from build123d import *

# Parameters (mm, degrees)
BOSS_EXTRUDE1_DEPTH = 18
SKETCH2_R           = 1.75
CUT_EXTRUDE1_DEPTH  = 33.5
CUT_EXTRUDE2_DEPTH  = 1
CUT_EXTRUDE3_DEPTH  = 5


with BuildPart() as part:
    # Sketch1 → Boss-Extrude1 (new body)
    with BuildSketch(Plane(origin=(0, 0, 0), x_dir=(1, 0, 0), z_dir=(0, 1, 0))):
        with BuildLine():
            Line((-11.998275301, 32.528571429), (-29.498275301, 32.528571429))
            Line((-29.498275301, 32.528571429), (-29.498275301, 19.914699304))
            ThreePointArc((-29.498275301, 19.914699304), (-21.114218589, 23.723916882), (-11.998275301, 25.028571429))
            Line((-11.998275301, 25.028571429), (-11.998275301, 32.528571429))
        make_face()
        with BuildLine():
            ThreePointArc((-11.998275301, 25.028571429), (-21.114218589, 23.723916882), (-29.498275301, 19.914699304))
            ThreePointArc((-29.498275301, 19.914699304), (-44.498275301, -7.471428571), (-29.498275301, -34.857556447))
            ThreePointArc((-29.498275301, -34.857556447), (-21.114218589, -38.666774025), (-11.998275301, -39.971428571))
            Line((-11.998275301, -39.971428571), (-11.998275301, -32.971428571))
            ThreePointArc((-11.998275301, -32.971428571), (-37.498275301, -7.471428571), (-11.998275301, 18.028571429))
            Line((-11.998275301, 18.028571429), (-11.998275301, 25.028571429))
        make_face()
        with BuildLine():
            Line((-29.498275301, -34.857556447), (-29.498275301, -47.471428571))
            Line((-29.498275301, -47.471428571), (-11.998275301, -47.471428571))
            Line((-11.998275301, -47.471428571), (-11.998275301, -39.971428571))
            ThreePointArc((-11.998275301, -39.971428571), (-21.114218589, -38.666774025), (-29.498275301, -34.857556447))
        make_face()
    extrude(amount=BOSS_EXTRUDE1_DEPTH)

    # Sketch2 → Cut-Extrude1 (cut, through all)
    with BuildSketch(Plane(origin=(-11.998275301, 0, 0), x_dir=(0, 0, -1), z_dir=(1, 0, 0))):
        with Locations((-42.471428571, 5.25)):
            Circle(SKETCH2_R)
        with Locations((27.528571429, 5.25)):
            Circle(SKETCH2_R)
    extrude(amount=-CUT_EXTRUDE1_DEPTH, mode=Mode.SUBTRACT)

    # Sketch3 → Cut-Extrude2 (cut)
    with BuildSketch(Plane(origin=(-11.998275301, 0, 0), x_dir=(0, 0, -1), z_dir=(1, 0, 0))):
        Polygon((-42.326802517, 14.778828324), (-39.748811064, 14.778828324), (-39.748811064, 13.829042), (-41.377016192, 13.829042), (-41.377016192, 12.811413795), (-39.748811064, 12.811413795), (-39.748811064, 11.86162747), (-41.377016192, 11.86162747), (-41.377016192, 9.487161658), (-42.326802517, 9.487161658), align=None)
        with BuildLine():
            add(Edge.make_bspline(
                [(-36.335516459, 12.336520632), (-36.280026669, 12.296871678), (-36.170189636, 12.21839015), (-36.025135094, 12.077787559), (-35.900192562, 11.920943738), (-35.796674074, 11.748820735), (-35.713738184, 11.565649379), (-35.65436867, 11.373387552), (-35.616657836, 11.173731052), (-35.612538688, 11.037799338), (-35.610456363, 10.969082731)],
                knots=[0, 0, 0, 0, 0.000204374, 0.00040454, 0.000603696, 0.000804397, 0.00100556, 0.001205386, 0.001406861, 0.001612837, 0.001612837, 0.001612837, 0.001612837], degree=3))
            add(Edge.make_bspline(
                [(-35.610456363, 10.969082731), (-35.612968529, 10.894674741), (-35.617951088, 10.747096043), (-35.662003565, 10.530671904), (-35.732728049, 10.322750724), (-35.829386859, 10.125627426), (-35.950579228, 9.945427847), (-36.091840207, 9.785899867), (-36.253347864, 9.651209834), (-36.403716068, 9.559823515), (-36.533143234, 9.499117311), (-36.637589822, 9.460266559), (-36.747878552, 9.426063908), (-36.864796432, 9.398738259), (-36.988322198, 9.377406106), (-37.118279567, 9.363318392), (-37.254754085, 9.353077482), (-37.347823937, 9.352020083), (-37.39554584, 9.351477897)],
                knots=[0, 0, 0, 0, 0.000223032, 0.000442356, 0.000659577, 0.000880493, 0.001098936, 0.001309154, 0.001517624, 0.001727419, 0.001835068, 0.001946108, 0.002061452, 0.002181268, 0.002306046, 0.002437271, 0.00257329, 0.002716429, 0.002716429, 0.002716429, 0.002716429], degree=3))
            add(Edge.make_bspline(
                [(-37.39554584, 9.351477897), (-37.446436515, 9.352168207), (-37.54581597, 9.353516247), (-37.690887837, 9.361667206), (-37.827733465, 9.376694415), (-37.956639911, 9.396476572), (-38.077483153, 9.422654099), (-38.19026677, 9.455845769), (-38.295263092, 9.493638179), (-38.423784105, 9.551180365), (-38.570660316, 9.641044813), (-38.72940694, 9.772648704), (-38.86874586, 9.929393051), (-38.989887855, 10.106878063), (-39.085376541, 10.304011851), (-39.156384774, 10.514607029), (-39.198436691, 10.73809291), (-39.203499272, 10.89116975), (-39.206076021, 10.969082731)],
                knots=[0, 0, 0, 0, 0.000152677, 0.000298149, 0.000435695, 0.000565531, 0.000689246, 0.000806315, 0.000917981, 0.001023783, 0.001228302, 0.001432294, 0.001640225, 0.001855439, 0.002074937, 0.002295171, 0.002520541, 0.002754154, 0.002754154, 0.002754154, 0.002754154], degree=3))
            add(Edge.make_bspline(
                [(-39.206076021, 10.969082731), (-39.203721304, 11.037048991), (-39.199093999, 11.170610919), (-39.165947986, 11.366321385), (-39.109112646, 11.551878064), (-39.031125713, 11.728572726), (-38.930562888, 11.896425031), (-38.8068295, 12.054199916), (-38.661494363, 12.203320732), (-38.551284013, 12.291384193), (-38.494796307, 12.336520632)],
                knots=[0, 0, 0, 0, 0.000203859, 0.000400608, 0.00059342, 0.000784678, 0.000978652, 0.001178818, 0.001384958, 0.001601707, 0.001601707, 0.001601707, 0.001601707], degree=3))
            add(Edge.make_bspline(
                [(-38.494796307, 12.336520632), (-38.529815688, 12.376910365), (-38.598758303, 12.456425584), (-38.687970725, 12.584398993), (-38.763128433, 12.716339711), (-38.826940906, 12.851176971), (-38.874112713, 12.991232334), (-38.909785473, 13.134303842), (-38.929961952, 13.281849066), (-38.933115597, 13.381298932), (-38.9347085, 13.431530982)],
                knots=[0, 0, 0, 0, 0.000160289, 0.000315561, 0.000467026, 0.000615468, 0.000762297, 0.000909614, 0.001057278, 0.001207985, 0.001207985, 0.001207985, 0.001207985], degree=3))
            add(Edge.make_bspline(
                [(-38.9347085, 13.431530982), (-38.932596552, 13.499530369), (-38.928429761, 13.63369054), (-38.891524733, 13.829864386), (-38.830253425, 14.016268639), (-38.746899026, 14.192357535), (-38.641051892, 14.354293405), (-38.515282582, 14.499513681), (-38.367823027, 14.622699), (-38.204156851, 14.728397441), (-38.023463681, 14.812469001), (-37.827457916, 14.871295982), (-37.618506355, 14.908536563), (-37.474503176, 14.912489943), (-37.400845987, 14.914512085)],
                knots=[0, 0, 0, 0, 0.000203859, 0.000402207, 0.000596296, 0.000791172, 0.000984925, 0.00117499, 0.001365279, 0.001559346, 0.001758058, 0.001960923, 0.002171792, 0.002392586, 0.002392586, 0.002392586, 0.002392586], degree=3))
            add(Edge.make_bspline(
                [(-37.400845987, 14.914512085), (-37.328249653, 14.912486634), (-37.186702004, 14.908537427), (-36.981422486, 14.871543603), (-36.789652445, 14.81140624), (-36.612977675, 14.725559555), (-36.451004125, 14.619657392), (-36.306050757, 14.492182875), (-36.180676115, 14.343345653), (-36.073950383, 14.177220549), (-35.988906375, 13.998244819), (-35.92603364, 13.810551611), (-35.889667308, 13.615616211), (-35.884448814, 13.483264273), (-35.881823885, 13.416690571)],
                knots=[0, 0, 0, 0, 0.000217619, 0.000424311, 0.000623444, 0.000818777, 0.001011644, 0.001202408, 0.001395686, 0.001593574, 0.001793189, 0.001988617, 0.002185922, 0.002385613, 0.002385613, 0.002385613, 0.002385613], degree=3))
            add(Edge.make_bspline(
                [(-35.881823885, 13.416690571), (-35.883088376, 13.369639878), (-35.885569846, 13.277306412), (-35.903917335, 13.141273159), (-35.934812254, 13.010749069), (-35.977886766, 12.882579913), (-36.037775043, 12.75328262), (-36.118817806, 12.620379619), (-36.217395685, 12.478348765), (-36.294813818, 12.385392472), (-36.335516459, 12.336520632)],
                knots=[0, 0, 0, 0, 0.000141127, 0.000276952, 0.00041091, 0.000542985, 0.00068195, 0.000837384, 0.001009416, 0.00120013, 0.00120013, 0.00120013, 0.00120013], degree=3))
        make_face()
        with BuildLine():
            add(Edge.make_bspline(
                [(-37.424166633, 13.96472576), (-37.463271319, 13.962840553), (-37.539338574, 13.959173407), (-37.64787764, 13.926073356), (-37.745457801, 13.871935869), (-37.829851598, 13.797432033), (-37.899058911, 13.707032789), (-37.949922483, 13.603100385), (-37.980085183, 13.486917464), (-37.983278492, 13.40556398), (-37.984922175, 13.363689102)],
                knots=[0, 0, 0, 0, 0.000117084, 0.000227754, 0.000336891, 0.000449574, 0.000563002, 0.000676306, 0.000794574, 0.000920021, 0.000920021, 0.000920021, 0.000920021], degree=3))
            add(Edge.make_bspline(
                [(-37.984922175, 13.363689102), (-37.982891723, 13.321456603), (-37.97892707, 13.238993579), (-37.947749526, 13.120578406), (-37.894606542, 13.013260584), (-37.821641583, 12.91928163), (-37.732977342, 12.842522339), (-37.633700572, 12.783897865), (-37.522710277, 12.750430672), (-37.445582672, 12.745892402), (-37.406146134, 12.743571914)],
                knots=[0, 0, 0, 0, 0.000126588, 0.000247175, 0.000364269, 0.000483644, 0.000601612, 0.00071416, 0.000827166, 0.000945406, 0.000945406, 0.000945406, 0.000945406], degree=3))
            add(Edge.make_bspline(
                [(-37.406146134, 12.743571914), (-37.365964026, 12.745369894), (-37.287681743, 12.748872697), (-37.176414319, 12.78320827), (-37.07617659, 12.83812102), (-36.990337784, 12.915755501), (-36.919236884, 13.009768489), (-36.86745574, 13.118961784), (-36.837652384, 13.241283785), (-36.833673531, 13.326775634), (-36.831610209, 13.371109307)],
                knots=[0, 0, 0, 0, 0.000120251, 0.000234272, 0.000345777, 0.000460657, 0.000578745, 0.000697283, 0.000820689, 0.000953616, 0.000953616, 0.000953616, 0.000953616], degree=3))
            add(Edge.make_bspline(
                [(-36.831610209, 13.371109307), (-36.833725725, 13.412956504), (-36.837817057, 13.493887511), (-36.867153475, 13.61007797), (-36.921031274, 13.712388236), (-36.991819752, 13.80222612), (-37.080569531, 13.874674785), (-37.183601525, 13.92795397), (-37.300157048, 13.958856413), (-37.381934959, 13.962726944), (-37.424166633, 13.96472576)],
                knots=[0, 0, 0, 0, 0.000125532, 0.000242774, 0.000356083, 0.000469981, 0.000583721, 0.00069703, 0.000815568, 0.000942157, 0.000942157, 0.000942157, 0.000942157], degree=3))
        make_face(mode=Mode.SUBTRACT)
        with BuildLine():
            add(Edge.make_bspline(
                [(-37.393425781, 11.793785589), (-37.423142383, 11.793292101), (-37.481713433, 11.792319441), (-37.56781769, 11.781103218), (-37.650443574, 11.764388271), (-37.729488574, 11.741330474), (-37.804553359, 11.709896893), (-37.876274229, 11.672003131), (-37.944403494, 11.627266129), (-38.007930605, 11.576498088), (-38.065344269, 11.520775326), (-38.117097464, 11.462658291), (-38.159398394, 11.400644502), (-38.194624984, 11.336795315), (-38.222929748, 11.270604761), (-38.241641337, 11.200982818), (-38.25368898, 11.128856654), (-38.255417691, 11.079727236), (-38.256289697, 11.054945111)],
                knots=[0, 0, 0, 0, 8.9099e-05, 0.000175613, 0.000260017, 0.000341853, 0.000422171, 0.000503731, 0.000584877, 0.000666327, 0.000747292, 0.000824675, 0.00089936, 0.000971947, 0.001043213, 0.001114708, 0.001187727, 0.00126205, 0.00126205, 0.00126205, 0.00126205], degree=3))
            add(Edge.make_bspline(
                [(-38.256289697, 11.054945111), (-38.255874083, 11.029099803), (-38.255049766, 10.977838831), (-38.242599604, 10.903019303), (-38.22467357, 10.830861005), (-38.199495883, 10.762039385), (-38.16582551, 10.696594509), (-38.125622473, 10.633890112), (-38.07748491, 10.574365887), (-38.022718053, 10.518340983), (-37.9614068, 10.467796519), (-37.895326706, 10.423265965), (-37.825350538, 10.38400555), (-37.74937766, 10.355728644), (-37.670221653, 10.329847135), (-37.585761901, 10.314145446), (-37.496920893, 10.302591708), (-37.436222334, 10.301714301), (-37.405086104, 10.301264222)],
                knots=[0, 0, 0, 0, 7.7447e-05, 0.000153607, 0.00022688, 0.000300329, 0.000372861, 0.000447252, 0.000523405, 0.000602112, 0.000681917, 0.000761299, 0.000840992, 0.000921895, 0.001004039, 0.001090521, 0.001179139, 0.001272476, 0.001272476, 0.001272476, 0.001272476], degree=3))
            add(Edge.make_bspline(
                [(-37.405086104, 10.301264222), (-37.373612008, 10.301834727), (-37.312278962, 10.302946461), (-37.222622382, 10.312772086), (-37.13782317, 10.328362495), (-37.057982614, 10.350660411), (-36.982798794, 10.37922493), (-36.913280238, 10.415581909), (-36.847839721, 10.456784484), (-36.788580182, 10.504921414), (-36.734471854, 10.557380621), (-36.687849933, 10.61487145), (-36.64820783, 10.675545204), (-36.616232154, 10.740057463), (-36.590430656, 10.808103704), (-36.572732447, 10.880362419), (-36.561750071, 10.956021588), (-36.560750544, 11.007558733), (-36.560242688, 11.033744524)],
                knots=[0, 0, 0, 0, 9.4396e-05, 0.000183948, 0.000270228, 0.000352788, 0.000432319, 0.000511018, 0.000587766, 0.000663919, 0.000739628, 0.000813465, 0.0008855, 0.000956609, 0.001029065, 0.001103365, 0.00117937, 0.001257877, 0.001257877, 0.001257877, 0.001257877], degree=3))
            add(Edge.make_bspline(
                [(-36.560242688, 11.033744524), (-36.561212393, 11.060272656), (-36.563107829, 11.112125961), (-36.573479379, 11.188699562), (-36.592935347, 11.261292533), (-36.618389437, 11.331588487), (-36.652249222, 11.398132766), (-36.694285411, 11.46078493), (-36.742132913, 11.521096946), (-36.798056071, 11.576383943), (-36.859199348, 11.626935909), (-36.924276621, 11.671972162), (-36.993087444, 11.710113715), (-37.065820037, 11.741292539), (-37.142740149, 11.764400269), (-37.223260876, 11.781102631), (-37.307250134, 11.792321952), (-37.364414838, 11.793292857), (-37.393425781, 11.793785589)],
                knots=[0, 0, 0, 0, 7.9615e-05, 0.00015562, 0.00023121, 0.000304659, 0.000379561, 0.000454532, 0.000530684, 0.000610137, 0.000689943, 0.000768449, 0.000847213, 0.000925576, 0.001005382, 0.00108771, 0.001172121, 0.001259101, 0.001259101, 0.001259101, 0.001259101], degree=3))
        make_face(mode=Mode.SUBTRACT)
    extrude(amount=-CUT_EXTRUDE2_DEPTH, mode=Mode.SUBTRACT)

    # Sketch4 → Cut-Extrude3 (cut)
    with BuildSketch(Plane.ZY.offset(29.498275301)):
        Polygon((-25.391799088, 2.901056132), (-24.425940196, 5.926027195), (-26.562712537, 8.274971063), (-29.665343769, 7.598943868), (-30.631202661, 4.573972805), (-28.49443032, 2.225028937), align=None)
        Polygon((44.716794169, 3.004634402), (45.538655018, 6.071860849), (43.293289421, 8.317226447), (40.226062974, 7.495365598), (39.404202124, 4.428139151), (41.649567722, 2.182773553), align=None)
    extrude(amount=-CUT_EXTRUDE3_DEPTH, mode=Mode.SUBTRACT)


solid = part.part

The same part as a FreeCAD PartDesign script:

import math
import FreeCAD as App
import Part
import Sketcher

V = App.Vector
Q = App.Units.Quantity

doc = App.newDocument("Part")
body = doc.addObject("PartDesign::Body", "Body")

sketch1 = body.newObject("Sketcher::SketchObject", "Sketch")
sketch1.AttachmentSupport = (doc.getObject("XZ_Plane"), [""])
sketch1.MapMode = "FlatFace"
sketch1.addGeometry([
    Part.LineSegment(V(-12, -33, 0), V(-29, -33, 0)),
    Part.LineSegment(V(-29, -33, 0), V(-29, -20, 0)),
    Part.ArcOfCircle(Part.Circle(V(-12, 7, 0), V(0, 0, 1), 32), math.radians(123), math.radians(237)),
    Part.LineSegment(V(-29, 35, 0), V(-29, 47, 0)),
    Part.LineSegment(V(-29, 47, 0), V(-12, 47, 0)),
    Part.LineSegment(V(-12, 47, 0), V(-12, 33, 0)),
    Part.ArcOfCircle(Part.Circle(V(-12, 7, 0), V(0, 0, 1), 26), math.radians(90), math.radians(270)),
    Part.LineSegment(V(-12, -18, 0), V(-12, -33, 0)),
], False)
sketch1.addConstraint([
    Sketcher.Constraint("Coincident", 0, 2, 1, 1),
    Sketcher.Constraint("Coincident", 1, 2, 2, 2),
    Sketcher.Constraint("Coincident", 2, 1, 3, 1),
    Sketcher.Constraint("Coincident", 3, 2, 4, 1),
    Sketcher.Constraint("Coincident", 4, 2, 5, 1),
    Sketcher.Constraint("Coincident", 5, 2, 6, 1),
    Sketcher.Constraint("Coincident", 6, 2, 7, 1),
    Sketcher.Constraint("Coincident", 7, 2, 0, 1),
    Sketcher.Constraint("Horizontal", 0),
    Sketcher.Constraint("Vertical", 1),
    Sketcher.Constraint("Vertical", 3),
    Sketcher.Constraint("Horizontal", 4),
    Sketcher.Constraint("Vertical", 5),
    Sketcher.Constraint("Vertical", 7),
    Sketcher.Constraint("Coincident", 6, 3, 2, 3),
    Sketcher.Constraint("Vertical", 1, 2, 2, 1),
    Sketcher.Constraint("Vertical", 6, 3, 4, 2),
    Sketcher.Constraint("Vertical", 5, 2, 6, 2),
    Sketcher.Constraint("Equal", 1, 3),
    Sketcher.Constraint("Radius", 2, 32.5),
    Sketcher.Constraint("Radius", 6, 25.5),
    Sketcher.Constraint("DistanceX", 0, 2, 0, 1, 17.5),
    Sketcher.Constraint("DistanceY", 5, 2, 5, 1, 14.5),
    Sketcher.Constraint("DistanceY", 1, 2, -1, 1, 19.914699),
    Sketcher.Constraint("DistanceX", 2, 3, -1, 1, 11.998275),
])
pad1 = body.newObject("PartDesign::Pad", "Pad")
pad1.Profile = sketch1
pad1.Length = 18
pad1.Reversed = True

sketch2 = body.newObject("Sketcher::SketchObject", "Sketch001")
sketch2.AttachmentSupport = (doc.getObject("YZ_Plane"), [""])
sketch2.MapMode = "FlatFace"
sketch2.AttachmentOffset = App.Placement(V(0, 0, -11.998275), App.Rotation())
sketch2.addGeometry([
    Part.Circle(V(5.2, 42.5, 0), V(0, 0, 1), 1.8),
    Part.Circle(V(5.2, -27.5, 0), V(0, 0, 1), 1.8),
], False)
sketch2.addConstraint([
    Sketcher.Constraint("Equal", 0, 1),
    Sketcher.Constraint("Vertical", 0, 3, 1, 3),
    Sketcher.Constraint("Diameter", 0, 3.5),
    Sketcher.Constraint("DistanceY", 1, 3, 0, 3, 70.0),
    Sketcher.Constraint("DistanceX", -1, 1, 0, 3, 5.25),
    Sketcher.Constraint("DistanceY", -1, 1, 0, 3, 42.471429),
])
pocket1 = body.newObject("PartDesign::Pocket", "Pocket")
pocket1.Profile = sketch2
pocket1.Type = "ThroughAll"

sketch3 = body.newObject("Sketcher::SketchObject", "Sketch002")
sketch3.AttachmentSupport = (doc.getObject("YZ_Plane"), [""])
sketch3.MapMode = "FlatFace"
sketch3.AttachmentOffset = App.Placement(V(0, 0, -11.998275), App.Rotation())
sketch3.addGeometry([
    Part.LineSegment(V(14.778828, 39.748811, 0), V(14.778828, 42.326803, 0)),
    Part.LineSegment(V(14.778828, 42.326803, 0), V(9.487162, 42.326803, 0)),
    Part.LineSegment(V(9.487162, 42.326803, 0), V(9.487162, 41.377016, 0)),
    Part.LineSegment(V(9.487162, 41.377016, 0), V(11.861627, 41.377016, 0)),
    Part.LineSegment(V(11.861627, 41.377016, 0), V(11.861627, 39.748811, 0)),
    Part.LineSegment(V(11.861627, 39.748811, 0), V(12.811414, 39.748811, 0)),
    Part.LineSegment(V(12.811414, 39.748811, 0), V(12.811414, 41.377016, 0)),
    Part.LineSegment(V(12.811414, 41.377016, 0), V(13.829042, 41.377016, 0)),
    Part.LineSegment(V(13.829042, 41.377016, 0), V(13.829042, 39.748811, 0)),
    Part.LineSegment(V(13.829042, 39.748811, 0), V(14.778828, 39.748811, 0)),
    Part.BSplineCurve([V(12.336521, 36.335516, 0), V(12.296872, 36.280027, 0), V(12.21839, 36.17019, 0), V(12.077788, 36.025135, 0), V(11.920944, 35.900193, 0), V(11.748821, 35.796674, 0), V(11.565649, 35.713738, 0), V(11.373388, 35.654369, 0), V(11.173731, 35.616658, 0), V(11.037799, 35.612539, 0), V(10.969083, 35.610456, 0)], [4, 1, 1, 1, 1, 1, 1, 1, 4], [0, 0.000204374, 0.00040454, 0.000603696, 0.000804397, 0.00100556, 0.001205386, 0.001406861, 0.001612837], False, 3, [1, 1, 1, 1, 1, 1, 1, 1, 1, 1, 1], False),
    Part.BSplineCurve([V(13.416691, 35.881824, 0), V(13.36964, 35.883088, 0), V(13.277306, 35.88557, 0), V(13.141273, 35.903917, 0), V(13.010749, 35.934812, 0), V(12.88258, 35.977887, 0), V(12.753283, 36.037775, 0), V(12.62038, 36.118818, 0), V(12.478349, 36.217396, 0), V(12.385392, 36.294814, 0), V(12.336521, 36.335516, 0)], [4, 1, 1, 1, 1, 1, 1, 1, 4], [0, 0.000141127, 0.000276952, 0.00041091, 0.000542985, 0.00068195, 0.000837384, 0.001009416, 0.00120013], False, 3, [1, 1, 1, 1, 1, 1, 1, 1, 1, 1, 1], False),
    Part.BSplineCurve([V(14.914512, 37.400846, 0), V(14.912487, 37.32825, 0), V(14.908537, 37.186702, 0), V(14.871544, 36.981422, 0), V(14.811406, 36.789652, 0), V(14.72556, 36.612978, 0), V(14.619657, 36.451004, 0), V(14.492183, 36.306051, 0), V(14.343346, 36.180676, 0), V(14.177221, 36.07395, 0), V(13.998245, 35.988906, 0), V(13.810552, 35.926034, 0), V(13.615616, 35.889667, 0), V(13.483264, 35.884449, 0), V(13.416691, 35.881824, 0)], [4, 1, 1, 1, 1, 1, 1, 1, 1, 1, 1, 1, 4], [0, 0.000217619, 0.000424311, 0.000623444, 0.000818777, 0.001011644, 0.001202408, 0.001395686, 0.001593574, 0.001793189, 0.001988617, 0.002185922, 0.002385613], False, 3, [1, 1, 1, 1, 1, 1, 1, 1, 1, 1, 1, 1, 1, 1, 1], False),
    Part.BSplineCurve([V(13.431531, 38.934708, 0), V(13.49953, 38.932597, 0), V(13.633691, 38.92843, 0), V(13.829864, 38.891525, 0), V(14.016269, 38.830253, 0), V(14.192358, 38.746899, 0), V(14.354293, 38.641052, 0), V(14.499514, 38.515283, 0), V(14.622699, 38.367823, 0), V(14.728397, 38.204157, 0), V(14.812469, 38.023464, 0), V(14.871296, 37.827458, 0), V(14.908537, 37.618506, 0), V(14.91249, 37.474503, 0), V(14.914512, 37.400846, 0)], [4, 1, 1, 1, 1, 1, 1, 1, 1, 1, 1, 1, 4], [0, 0.000203859, 0.000402207, 0.000596296, 0.000791172, 0.000984925, 0.00117499, 0.001365279, 0.001559346, 0.001758058, 0.001960923, 0.002171792, 0.002392586], False, 3, [1, 1, 1, 1, 1, 1, 1, 1, 1, 1, 1, 1, 1, 1, 1], False),
    Part.BSplineCurve([V(12.336521, 38.494796, 0), V(12.37691, 38.529816, 0), V(12.456426, 38.598758, 0), V(12.584399, 38.687971, 0), V(12.71634, 38.763128, 0), V(12.851177, 38.826941, 0), V(12.991232, 38.874113, 0), V(13.134304, 38.909785, 0), V(13.281849, 38.929962, 0), V(13.381299, 38.933116, 0), V(13.431531, 38.934708, 0)], [4, 1, 1, 1, 1, 1, 1, 1, 4], [0, 0.000160289, 0.000315561, 0.000467026, 0.000615468, 0.000762297, 0.000909614, 0.001057278, 0.001207985], False, 3, [1, 1, 1, 1, 1, 1, 1, 1, 1, 1, 1], False),
    Part.BSplineCurve([V(10.969083, 39.206076, 0), V(11.037049, 39.203721, 0), V(11.170611, 39.199094, 0), V(11.366321, 39.165948, 0), V(11.551878, 39.109113, 0), V(11.728573, 39.031126, 0), V(11.896425, 38.930563, 0), V(12.0542, 38.806829, 0), V(12.203321, 38.661494, 0), V(12.291384, 38.551284, 0), V(12.336521, 38.494796, 0)], [4, 1, 1, 1, 1, 1, 1, 1, 4], [0, 0.000203859, 0.000400608, 0.00059342, 0.000784678, 0.000978652, 0.001178818, 0.001384958, 0.001601707], False, 3, [1, 1, 1, 1, 1, 1, 1, 1, 1, 1, 1], False),
    Part.BSplineCurve([V(9.351478, 37.395546, 0), V(9.352168, 37.446437, 0), V(9.353516, 37.545816, 0), V(9.361667, 37.690888, 0), V(9.376694, 37.827733, 0), V(9.396477, 37.95664, 0), V(9.422654, 38.077483, 0), V(9.455846, 38.190267, 0), V(9.493638, 38.295263, 0), V(9.55118, 38.423784, 0), V(9.641045, 38.57066, 0), V(9.772649, 38.729407, 0), V(9.929393, 38.868746, 0), V(10.106878, 38.989888, 0), V(10.304012, 39.085377, 0), V(10.514607, 39.156385, 0), V(10.738093, 39.198437, 0), V(10.89117, 39.203499, 0), V(10.969083, 39.206076, 0)], [4, 1, 1, 1, 1, 1, 1, 1, 1, 1, 1, 1, 1, 1, 1, 1, 4], [0, 0.000152677, 0.000298149, 0.000435695, 0.000565531, 0.000689246, 0.000806315, 0.000917981, 0.001023783, 0.001228302, 0.001432294, 0.001640225, 0.001855439, 0.002074937, 0.002295171, 0.002520541, 0.002754154], False, 3, [1, 1, 1, 1, 1, 1, 1, 1, 1, 1, 1, 1, 1, 1, 1, 1, 1, 1, 1], False),
    Part.BSplineCurve([V(10.969083, 35.610456, 0), V(10.894675, 35.612969, 0), V(10.747096, 35.617951, 0), V(10.530672, 35.662004, 0), V(10.322751, 35.732728, 0), V(10.125627, 35.829387, 0), V(9.945428, 35.950579, 0), V(9.7859, 36.09184, 0), V(9.65121, 36.253348, 0), V(9.559824, 36.403716, 0), V(9.499117, 36.533143, 0), V(9.460267, 36.63759, 0), V(9.426064, 36.747879, 0), V(9.398738, 36.864796, 0), V(9.377406, 36.988322, 0), V(9.363318, 37.11828, 0), V(9.353077, 37.254754, 0), V(9.35202, 37.347824, 0), V(9.351478, 37.395546, 0)], [4, 1, 1, 1, 1, 1, 1, 1, 1, 1, 1, 1, 1, 1, 1, 1, 4], [0, 0.000223032, 0.000442356, 0.000659577, 0.000880493, 0.001098936, 0.001309154, 0.001517624, 0.001727419, 0.001835068, 0.001946108, 0.002061452, 0.002181268, 0.002306046, 0.002437271, 0.00257329, 0.002716429], False, 3, [1, 1, 1, 1, 1, 1, 1, 1, 1, 1, 1, 1, 1, 1, 1, 1, 1, 1, 1], False),
    Part.BSplineCurve([V(11.033745, 36.560243, 0), V(11.060273, 36.561212, 0), V(11.112126, 36.563108, 0), V(11.1887, 36.573479, 0), V(11.261293, 36.592935, 0), V(11.331588, 36.618389, 0), V(11.398133, 36.652249, 0), V(11.460785, 36.694285, 0), V(11.521097, 36.742133, 0), V(11.576384, 36.798056, 0), V(11.626936, 36.859199, 0), V(11.671972, 36.924277, 0), V(11.710114, 36.993087, 0), V(11.741293, 37.06582, 0), V(11.7644, 37.14274, 0), V(11.781103, 37.223261, 0), V(11.792322, 37.30725, 0), V(11.793293, 37.364415, 0), V(11.793786, 37.393426, 0)], [4, 1, 1, 1, 1, 1, 1, 1, 1, 1, 1, 1, 1, 1, 1, 1, 4], [0, 0.000079615, 0.00015562, 0.00023121, 0.000304659, 0.000379561, 0.000454532, 0.000530684, 0.000610137, 0.000689943, 0.000768449, 0.000847213, 0.000925576, 0.001005382, 0.00108771, 0.001172121, 0.001259101], False, 3, [1, 1, 1, 1, 1, 1, 1, 1, 1, 1, 1, 1, 1, 1, 1, 1, 1, 1, 1], False),
    Part.BSplineCurve([V(10.301264, 37.405086, 0), V(10.301835, 37.373612, 0), V(10.302946, 37.312279, 0), V(10.312772, 37.222622, 0), V(10.328362, 37.137823, 0), V(10.35066, 37.057983, 0), V(10.379225, 36.982799, 0), V(10.415582, 36.91328, 0), V(10.456784, 36.84784, 0), V(10.504921, 36.78858, 0), V(10.557381, 36.734472, 0), V(10.614871, 36.68785, 0), V(10.675545, 36.648208, 0), V(10.740057, 36.616232, 0), V(10.808104, 36.590431, 0), V(10.880362, 36.572732, 0), V(10.956022, 36.56175, 0), V(11.007559, 36.560751, 0), V(11.033745, 36.560243, 0)], [4, 1, 1, 1, 1, 1, 1, 1, 1, 1, 1, 1, 1, 1, 1, 1, 4], [0, 0.000094396, 0.000183948, 0.000270228, 0.000352788, 0.000432319, 0.000511018, 0.000587766, 0.000663919, 0.000739628, 0.000813465, 0.0008855, 0.000956609, 0.001029065, 0.001103365, 0.00117937, 0.001257877], False, 3, [1, 1, 1, 1, 1, 1, 1, 1, 1, 1, 1, 1, 1, 1, 1, 1, 1, 1, 1], False),
    Part.BSplineCurve([V(11.054945, 38.25629, 0), V(11.0291, 38.255874, 0), V(10.977839, 38.25505, 0), V(10.903019, 38.2426, 0), V(10.830861, 38.224674, 0), V(10.762039, 38.199496, 0), V(10.696595, 38.165826, 0), V(10.63389, 38.125622, 0), V(10.574366, 38.077485, 0), V(10.518341, 38.022718, 0), V(10.467797, 37.961407, 0), V(10.423266, 37.895327, 0), V(10.384006, 37.825351, 0), V(10.355729, 37.749378, 0), V(10.329847, 37.670222, 0), V(10.314145, 37.585762, 0), V(10.302592, 37.496921, 0), V(10.301714, 37.436222, 0), V(10.301264, 37.405086, 0)], [4, 1, 1, 1, 1, 1, 1, 1, 1, 1, 1, 1, 1, 1, 1, 1, 4], [0, 0.000077447, 0.000153607, 0.00022688, 0.000300329, 0.000372861, 0.000447252, 0.000523405, 0.000602112, 0.000681917, 0.000761299, 0.000840992, 0.000921895, 0.001004039, 0.001090521, 0.001179139, 0.001272476], False, 3, [1, 1, 1, 1, 1, 1, 1, 1, 1, 1, 1, 1, 1, 1, 1, 1, 1, 1, 1], False),
    Part.BSplineCurve([V(11.793786, 37.393426, 0), V(11.793292, 37.423142, 0), V(11.792319, 37.481713, 0), V(11.781103, 37.567818, 0), V(11.764388, 37.650444, 0), V(11.74133, 37.729489, 0), V(11.709897, 37.804553, 0), V(11.672003, 37.876274, 0), V(11.627266, 37.944403, 0), V(11.576498, 38.007931, 0), V(11.520775, 38.065344, 0), V(11.462658, 38.117097, 0), V(11.400645, 38.159398, 0), V(11.336795, 38.194625, 0), V(11.270605, 38.22293, 0), V(11.200983, 38.241641, 0), V(11.128857, 38.253689, 0), V(11.079727, 38.255418, 0), V(11.054945, 38.25629, 0)], [4, 1, 1, 1, 1, 1, 1, 1, 1, 1, 1, 1, 1, 1, 1, 1, 4], [0, 0.000089099, 0.000175613, 0.000260017, 0.000341853, 0.000422171, 0.000503731, 0.000584877, 0.000666327, 0.000747292, 0.000824675, 0.00089936, 0.000971947, 0.001043213, 0.001114708, 0.001187727, 0.00126205], False, 3, [1, 1, 1, 1, 1, 1, 1, 1, 1, 1, 1, 1, 1, 1, 1, 1, 1, 1, 1], False),
    Part.BSplineCurve([V(13.371109, 36.83161, 0), V(13.412957, 36.833726, 0), V(13.493888, 36.837817, 0), V(13.610078, 36.867153, 0), V(13.712388, 36.921031, 0), V(13.802226, 36.99182, 0), V(13.874675, 37.08057, 0), V(13.927954, 37.183602, 0), V(13.958856, 37.300157, 0), V(13.962727, 37.381935, 0), V(13.964726, 37.424167, 0)], [4, 1, 1, 1, 1, 1, 1, 1, 4], [0, 0.000125532, 0.000242774, 0.000356083, 0.000469981, 0.000583721, 0.00069703, 0.000815568, 0.000942157], False, 3, [1, 1, 1, 1, 1, 1, 1, 1, 1, 1, 1], False),
    Part.BSplineCurve([V(12.743572, 37.406146, 0), V(12.74537, 37.365964, 0), V(12.748873, 37.287682, 0), V(12.783208, 37.176414, 0), V(12.838121, 37.076177, 0), V(12.915756, 36.990338, 0), V(13.009768, 36.919237, 0), V(13.118962, 36.867456, 0), V(13.241284, 36.837652, 0), V(13.326776, 36.833674, 0), V(13.371109, 36.83161, 0)], [4, 1, 1, 1, 1, 1, 1, 1, 4], [0, 0.000120251, 0.000234272, 0.000345777, 0.000460657, 0.000578745, 0.000697283, 0.000820689, 0.000953616], False, 3, [1, 1, 1, 1, 1, 1, 1, 1, 1, 1, 1], False),
    Part.BSplineCurve([V(13.363689, 37.984922, 0), V(13.321457, 37.982892, 0), V(13.238994, 37.978927, 0), V(13.120578, 37.94775, 0), V(13.013261, 37.894607, 0), V(12.919282, 37.821642, 0), V(12.842522, 37.732977, 0), V(12.783898, 37.633701, 0), V(12.750431, 37.52271, 0), V(12.745892, 37.445583, 0), V(12.743572, 37.406146, 0)], [4, 1, 1, 1, 1, 1, 1, 1, 4], [0, 0.000126588, 0.000247175, 0.000364269, 0.000483644, 0.000601612, 0.00071416, 0.000827166, 0.000945406], False, 3, [1, 1, 1, 1, 1, 1, 1, 1, 1, 1, 1], False),
    Part.BSplineCurve([V(13.964726, 37.424167, 0), V(13.962841, 37.463271, 0), V(13.959173, 37.539339, 0), V(13.926073, 37.647878, 0), V(13.871936, 37.745458, 0), V(13.797432, 37.829852, 0), V(13.707033, 37.899059, 0), V(13.6031, 37.949922, 0), V(13.486917, 37.980085, 0), V(13.405564, 37.983278, 0), V(13.363689, 37.984922, 0)], [4, 1, 1, 1, 1, 1, 1, 1, 4], [0, 0.000117084, 0.000227754, 0.000336891, 0.000449574, 0.000563002, 0.000676306, 0.000794574, 0.000920021], False, 3, [1, 1, 1, 1, 1, 1, 1, 1, 1, 1, 1], False),
], False)
sketch3.addConstraint([
    Sketcher.Constraint("Block", 10),
    Sketcher.Constraint("Block", 11),
    Sketcher.Constraint("Block", 12),
    Sketcher.Constraint("Block", 13),
    Sketcher.Constraint("Block", 14),
    Sketcher.Constraint("Block", 15),
    Sketcher.Constraint("Block", 16),
    Sketcher.Constraint("Block", 17),
    Sketcher.Constraint("Block", 18),
    Sketcher.Constraint("Block", 19),
    Sketcher.Constraint("Block", 20),
    Sketcher.Constraint("Block", 21),
    Sketcher.Constraint("Block", 22),
    Sketcher.Constraint("Block", 23),
    Sketcher.Constraint("Block", 24),
    Sketcher.Constraint("Block", 25),
    Sketcher.Constraint("Coincident", 0, 2, 1, 1),
    Sketcher.Constraint("Coincident", 1, 2, 2, 1),
    Sketcher.Constraint("Coincident", 2, 2, 3, 1),
    Sketcher.Constraint("Coincident", 3, 2, 4, 1),
    Sketcher.Constraint("Coincident", 4, 2, 5, 1),
    Sketcher.Constraint("Coincident", 5, 2, 6, 1),
    Sketcher.Constraint("Coincident", 6, 2, 7, 1),
    Sketcher.Constraint("Coincident", 7, 2, 8, 1),
    Sketcher.Constraint("Coincident", 8, 2, 9, 1),
    Sketcher.Constraint("Coincident", 9, 2, 0, 1),
    Sketcher.Constraint("Vertical", 0),
    Sketcher.Constraint("Horizontal", 1),
    Sketcher.Constraint("Vertical", 2),
    Sketcher.Constraint("Horizontal", 3),
    Sketcher.Constraint("Vertical", 4),
    Sketcher.Constraint("Horizontal", 5),
    Sketcher.Constraint("Vertical", 6),
    Sketcher.Constraint("Horizontal", 7),
    Sketcher.Constraint("Vertical", 8),
    Sketcher.Constraint("Horizontal", 9),
    Sketcher.Constraint("Horizontal", 3, 2, 6, 2),
    Sketcher.Constraint("Horizontal", 5, 2, 8, 2),
    Sketcher.Constraint("Equal", 5, 9),
    Sketcher.Constraint("Equal", 9, 2),
    Sketcher.Constraint("DistanceX", 7, 1, 7, 2, 1.017628),
    Sketcher.Constraint("DistanceY", 0, 1, 0, 2, 2.577991),
    Sketcher.Constraint("DistanceX", 3, 2, 0, 2, 2.917201),
    Sketcher.Constraint("DistanceX", 1, 2, 1, 1, 5.291667),
    Sketcher.Constraint("DistanceX", -1, 1, 0, 2, 14.778828),
    Sketcher.Constraint("DistanceY", -1, 1, 4, 2, 39.748811),
])
pocket2 = body.newObject("PartDesign::Pocket", "Pocket001")
pocket2.Profile = sketch3
pocket2.Length = 1

sketch4 = body.newObject("Sketcher::SketchObject", "Sketch003")
sketch4.AttachmentSupport = (doc.getObject("YZ_Plane"), [""])
sketch4.MapMode = "FlatFace"
sketch4.AttachmentOffset = App.Placement(V(0, 0, -29.498275), App.Rotation())
sketch4.addGeometry([
    Part.LineSegment(V(2.9, -25.4, 0), V(5.9, -24.4, 0)),
    Part.LineSegment(V(5.9, -24.4, 0), V(8.3, -26.6, 0)),
    Part.LineSegment(V(8.3, -26.6, 0), V(7.6, -29.7, 0)),
    Part.LineSegment(V(7.6, -29.7, 0), V(4.6, -30.6, 0)),
    Part.LineSegment(V(4.6, -30.6, 0), V(2.2, -28.5, 0)),
    Part.LineSegment(V(2.2, -28.5, 0), V(2.9, -25.4, 0)),
    Part.LineSegment(V(3, 44.7, 0), V(6.1, 45.5, 0)),
    Part.LineSegment(V(6.1, 45.5, 0), V(8.3, 43.3, 0)),
    Part.LineSegment(V(8.3, 43.3, 0), V(7.5, 40.2, 0)),
    Part.LineSegment(V(7.5, 40.2, 0), V(4.4, 39.4, 0)),
    Part.LineSegment(V(4.4, 39.4, 0), V(2.2, 41.6, 0)),
    Part.LineSegment(V(2.2, 41.6, 0), V(3, 44.7, 0)),
], False)
sketch4.addConstraint([
    Sketcher.Constraint("Coincident", 0, 2, 1, 1),
    Sketcher.Constraint("Coincident", 1, 2, 2, 1),
    Sketcher.Constraint("Coincident", 2, 2, 3, 1),
    Sketcher.Constraint("Coincident", 3, 2, 4, 1),
    Sketcher.Constraint("Coincident", 4, 2, 5, 1),
    Sketcher.Constraint("Coincident", 5, 2, 0, 1),
    Sketcher.Constraint("Coincident", 6, 2, 7, 1),
    Sketcher.Constraint("Coincident", 7, 2, 8, 1),
    Sketcher.Constraint("Coincident", 8, 2, 9, 1),
    Sketcher.Constraint("Coincident", 9, 2, 10, 1),
    Sketcher.Constraint("Coincident", 10, 2, 11, 1),
    Sketcher.Constraint("Coincident", 11, 2, 6, 1),
    Sketcher.Constraint("Parallel", 0, 3),
    Sketcher.Constraint("Parallel", 1, 4),
    Sketcher.Constraint("Parallel", 2, 5),
    Sketcher.Constraint("Parallel", 6, 9),
    Sketcher.Constraint("Parallel", 7, 10),
    Sketcher.Constraint("Parallel", 8, 11),
    Sketcher.Constraint("Equal", 0, 1),
    Sketcher.Constraint("Equal", 1, 2),
    Sketcher.Constraint("Equal", 2, 3),
    Sketcher.Constraint("Equal", 5, 6),
    Sketcher.Constraint("Equal", 6, 7),
    Sketcher.Constraint("Equal", 7, 8),
    Sketcher.Constraint("Equal", 8, 9),
    Sketcher.Constraint("Angle", 6, Q("15 deg")),
    Sketcher.Constraint("Angle", 7, Q("-45 deg")),
    Sketcher.Constraint("Angle", 8, Q("-105 deg")),
    Sketcher.Constraint("DistanceX", 3, 2, 1, 2, 3.700998),
    Sketcher.Constraint("DistanceY", 2, 2, 6, 2, 75.203999),
    Sketcher.Constraint("DistanceY", 1, 2, 7, 2, 69.856002),
    Sketcher.Constraint("DistanceY", 5, 2, 9, 2, 64.796001),
    Sketcher.Constraint("DistanceY", 5, 2, -1, 1, 25.391799),
    Sketcher.Constraint("DistanceX", 0, 2, 7, 2, 2.391199),
    Sketcher.Constraint("DistanceY", 0, 2, -1, 1, 24.42594),
    Sketcher.Constraint("DistanceX", -1, 1, 1, 2, 8.274971),
])
pocket3 = body.newObject("PartDesign::Pocket", "Pocket002")
pocket3.Profile = sketch4
pocket3.Length = 5
pocket3.Reversed = True

doc.recompute()
